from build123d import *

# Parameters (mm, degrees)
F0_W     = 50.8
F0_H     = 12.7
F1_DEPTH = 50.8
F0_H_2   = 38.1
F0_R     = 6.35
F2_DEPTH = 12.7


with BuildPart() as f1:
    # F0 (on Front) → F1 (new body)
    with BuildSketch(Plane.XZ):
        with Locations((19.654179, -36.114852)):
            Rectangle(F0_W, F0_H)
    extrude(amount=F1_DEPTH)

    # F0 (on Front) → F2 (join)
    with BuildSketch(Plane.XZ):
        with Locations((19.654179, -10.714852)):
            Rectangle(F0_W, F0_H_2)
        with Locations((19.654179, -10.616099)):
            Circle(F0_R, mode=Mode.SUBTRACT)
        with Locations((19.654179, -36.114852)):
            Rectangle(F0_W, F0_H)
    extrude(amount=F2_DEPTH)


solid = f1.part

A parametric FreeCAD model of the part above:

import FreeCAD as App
import Part
import Sketcher
from FreeCAD import Vector
Q = App.Units.Quantity


def add_polygon(sketch, points):
    """Adds a closed chain of lines whose ends are joined by coincident constraints."""
    first, n = sketch.GeometryCount, len(points)
    for a, b in zip(points, points[1:] + points[:1]):
        sketch.addGeometry(Part.LineSegment(App.Vector(*a, 0), App.Vector(*b, 0)), False)
    for i in range(n):
        sketch.addConstraint(Sketcher.Constraint("Coincident", first + i, 2, first + (i + 1) % n, 1))

doc = App.newDocument("Part")
body = doc.addObject("PartDesign::Body", "Body")

sketch1 = body.newObject("Sketcher::SketchObject", "Sketch")
sketch1.AttachmentSupport = (doc.getObject("XZ_Plane"), [""])
sketch1.MapMode = "FlatFace"
add_polygon(sketch1, [(-6, -30), (-6, -42), (45, -42), (45, -30)])
sketch1.addConstraint([
    Sketcher.Constraint("Vertical", 0),
    Sketcher.Constraint("Horizontal", 1),
    Sketcher.Constraint("Vertical", 2),
    Sketcher.Constraint("Horizontal", 3),
    Sketcher.Constraint("DistanceX", 1, 1, 1, 2, Q("2 in")),
    Sketcher.Constraint("DistanceY", 0, 2, 0, 1, Q("0.5 in")),
    Sketcher.Constraint("DistanceX", 0, 2, -1, 1, 5.745821),
    Sketcher.Constraint("DistanceY", 0, 2, -1, 1, 42.464852),
])
pad1 = body.newObject("PartDesign::Pad", "Pad")
pad1.Profile = sketch1
pad1.Length = Q("2 in")

sketch2 = body.newObject("Sketcher::SketchObject", "Sketch001")
sketch2.AttachmentSupport = (doc.getObject("XZ_Plane"), [""])
sketch2.MapMode = "FlatFace"
add_polygon(sketch2, [(-6, 8), (-6, -42), (45, -42), (45, 8)])
sketch2.addGeometry(Part.Circle(Vector(20, -11, 0), Vector(0, 0, 1), 6), False)
sketch2.addConstraint([
    Sketcher.Constraint("Vertical", 0),
    Sketcher.Constraint("Horizontal", 1),
    Sketcher.Constraint("Vertical", 2),
    Sketcher.Constraint("Horizontal", 3),
    Sketcher.Constraint("Equal", 3, 0),
    Sketcher.Constraint("Diameter", 4, Q("0.5 in")),
    Sketcher.Constraint("DistanceX", 1, 1, 1, 2, Q("2 in")),
    Sketcher.Constraint("DistanceX", 0, 2, 4, 3, Q("1 in")),
    Sketcher.Constraint("DistanceY", 4, 3, -1, 1, 10.616099),
    Sketcher.Constraint("DistanceX", -1, 1, 4, 3, 19.654179),
    Sketcher.Constraint("DistanceY", 0, 2, -1, 1, 42.464852),
])
pad2 = body.newObject("PartDesign::Pad", "Pad001")
pad2.Profile = sketch2
pad2.Length = Q("0.5 in")

doc.recompute()
